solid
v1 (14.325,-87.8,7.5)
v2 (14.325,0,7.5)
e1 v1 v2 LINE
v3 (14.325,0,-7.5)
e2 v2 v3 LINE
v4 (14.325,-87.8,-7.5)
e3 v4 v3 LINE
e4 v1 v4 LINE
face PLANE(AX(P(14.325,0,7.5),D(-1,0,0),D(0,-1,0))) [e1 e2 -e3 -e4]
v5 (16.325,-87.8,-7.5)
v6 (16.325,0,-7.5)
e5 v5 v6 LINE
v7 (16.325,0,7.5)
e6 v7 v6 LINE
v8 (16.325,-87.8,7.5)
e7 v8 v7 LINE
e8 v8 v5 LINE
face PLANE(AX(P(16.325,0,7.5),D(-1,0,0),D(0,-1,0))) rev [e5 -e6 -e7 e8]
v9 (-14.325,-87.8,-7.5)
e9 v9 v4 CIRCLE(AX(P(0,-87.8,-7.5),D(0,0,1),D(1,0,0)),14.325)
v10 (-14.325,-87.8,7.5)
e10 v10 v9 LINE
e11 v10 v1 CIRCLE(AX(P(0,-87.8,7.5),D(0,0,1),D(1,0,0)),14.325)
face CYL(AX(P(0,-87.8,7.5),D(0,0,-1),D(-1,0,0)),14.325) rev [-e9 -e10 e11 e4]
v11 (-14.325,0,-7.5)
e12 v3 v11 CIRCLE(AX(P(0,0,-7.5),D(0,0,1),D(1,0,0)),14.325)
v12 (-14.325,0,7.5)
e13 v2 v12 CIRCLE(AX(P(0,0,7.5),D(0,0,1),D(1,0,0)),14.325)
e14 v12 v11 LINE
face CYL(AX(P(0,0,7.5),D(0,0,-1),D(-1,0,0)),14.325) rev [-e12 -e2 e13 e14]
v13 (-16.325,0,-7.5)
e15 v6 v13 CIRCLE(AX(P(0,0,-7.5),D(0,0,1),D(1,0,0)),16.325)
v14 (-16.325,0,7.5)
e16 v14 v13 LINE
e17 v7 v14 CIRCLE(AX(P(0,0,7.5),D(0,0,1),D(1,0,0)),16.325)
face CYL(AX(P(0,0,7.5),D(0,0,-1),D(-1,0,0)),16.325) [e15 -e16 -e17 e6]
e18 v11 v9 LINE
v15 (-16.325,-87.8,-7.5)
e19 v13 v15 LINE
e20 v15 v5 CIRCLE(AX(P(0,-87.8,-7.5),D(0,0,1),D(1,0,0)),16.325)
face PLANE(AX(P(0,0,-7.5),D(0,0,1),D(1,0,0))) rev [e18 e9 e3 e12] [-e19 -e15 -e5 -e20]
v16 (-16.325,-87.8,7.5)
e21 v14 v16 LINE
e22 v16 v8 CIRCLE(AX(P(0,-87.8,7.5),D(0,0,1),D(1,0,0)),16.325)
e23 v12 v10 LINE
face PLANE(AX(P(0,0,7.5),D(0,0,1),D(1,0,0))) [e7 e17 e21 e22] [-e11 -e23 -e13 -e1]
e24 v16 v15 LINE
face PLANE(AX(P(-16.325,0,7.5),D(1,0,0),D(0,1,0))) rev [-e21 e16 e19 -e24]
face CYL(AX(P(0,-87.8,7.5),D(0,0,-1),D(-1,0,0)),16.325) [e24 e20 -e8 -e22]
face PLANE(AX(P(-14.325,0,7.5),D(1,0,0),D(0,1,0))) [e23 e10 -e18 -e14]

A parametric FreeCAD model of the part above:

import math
import FreeCAD as App
import Part
import Sketcher

doc = App.newDocument("Part")
body = doc.addObject("PartDesign::Body", "Body")

# Sketch on XY plane
sketch1 = doc.addObject("Sketcher::SketchObject", "Sketch")
body.addObject(sketch1)
sketch1.AttachmentSupport = (doc.XY_Plane, [""])
sketch1.MapMode = "FlatFace"
sketch1.addGeometry(Part.LineSegment(App.Vector(-16, 0, 0), App.Vector(-16, -88, 0)), False)
sketch1.addGeometry(Part.ArcOfCircle(Part.Circle(App.Vector(0, -88, 0), App.Vector(0, 0, 1), 16), math.radians(180), math.radians(360)), False)
sketch1.addGeometry(Part.LineSegment(App.Vector(16, -88, 0), App.Vector(16, 0, 0)), False)
sketch1.addGeometry(Part.ArcOfCircle(Part.Circle(App.Vector(0, 0, 0), App.Vector(0, 0, 1), 16), math.radians(0), math.radians(180)), False)
sketch1.addGeometry(Part.LineSegment(App.Vector(-14, -88, 0), App.Vector(-14, 0, 0)), False)
sketch1.addGeometry(Part.ArcOfCircle(Part.Circle(App.Vector(0, 0, 0), App.Vector(0, 0, 1), 14), math.radians(0), math.radians(180)), False)
sketch1.addGeometry(Part.LineSegment(App.Vector(14, 0, 0), App.Vector(14, -88, 0)), False)
sketch1.addGeometry(Part.ArcOfCircle(Part.Circle(App.Vector(0, -88, 0), App.Vector(0, 0, 1), 14), math.radians(180), math.radians(360)), False)
sketch1.addConstraint(Sketcher.Constraint("Tangent", 0, 2, 1, 1))
sketch1.addConstraint(Sketcher.Constraint("Tangent", 1, 2, 2, 1))
sketch1.addConstraint(Sketcher.Constraint("Tangent", 2, 2, 3, 1))
sketch1.addConstraint(Sketcher.Constraint("Tangent", 3, 2, 0, 1))
sketch1.addConstraint(Sketcher.Constraint("Tangent", 4, 2, 5, 2))
sketch1.addConstraint(Sketcher.Constraint("Tangent", 5, 1, 6, 1))
sketch1.addConstraint(Sketcher.Constraint("Tangent", 6, 2, 7, 2))
sketch1.addConstraint(Sketcher.Constraint("Tangent", 7, 1, 4, 1))
sketch1.addConstraint(Sketcher.Constraint("Vertical", 0))
sketch1.addConstraint(Sketcher.Constraint("Vertical", 2))
sketch1.addConstraint(Sketcher.Constraint("Vertical", 4))
sketch1.addConstraint(Sketcher.Constraint("Vertical", 6))
sketch1.addConstraint(Sketcher.Constraint("Coincident", 3, 3, -1, 1))
sketch1.addConstraint(Sketcher.Constraint("Coincident", 5, 3, -1, 1))
sketch1.addConstraint(Sketcher.Constraint("Horizontal", 7, 3, 0, 2))
sketch1.addConstraint(Sketcher.Constraint("DistanceY", 0, 2, 0, 1, 87.8))
sketch1.addConstraint(Sketcher.Constraint("Radius", 1, 16.325))
sketch1.addConstraint(Sketcher.Constraint("Radius", 5, 14.325))
pad1 = doc.addObject("PartDesign::Pad", "Pad")
body.addObject(pad1)
pad1.Profile = sketch1
pad1.Length = 15
pad1.Midplane = True

doc.recompute()
